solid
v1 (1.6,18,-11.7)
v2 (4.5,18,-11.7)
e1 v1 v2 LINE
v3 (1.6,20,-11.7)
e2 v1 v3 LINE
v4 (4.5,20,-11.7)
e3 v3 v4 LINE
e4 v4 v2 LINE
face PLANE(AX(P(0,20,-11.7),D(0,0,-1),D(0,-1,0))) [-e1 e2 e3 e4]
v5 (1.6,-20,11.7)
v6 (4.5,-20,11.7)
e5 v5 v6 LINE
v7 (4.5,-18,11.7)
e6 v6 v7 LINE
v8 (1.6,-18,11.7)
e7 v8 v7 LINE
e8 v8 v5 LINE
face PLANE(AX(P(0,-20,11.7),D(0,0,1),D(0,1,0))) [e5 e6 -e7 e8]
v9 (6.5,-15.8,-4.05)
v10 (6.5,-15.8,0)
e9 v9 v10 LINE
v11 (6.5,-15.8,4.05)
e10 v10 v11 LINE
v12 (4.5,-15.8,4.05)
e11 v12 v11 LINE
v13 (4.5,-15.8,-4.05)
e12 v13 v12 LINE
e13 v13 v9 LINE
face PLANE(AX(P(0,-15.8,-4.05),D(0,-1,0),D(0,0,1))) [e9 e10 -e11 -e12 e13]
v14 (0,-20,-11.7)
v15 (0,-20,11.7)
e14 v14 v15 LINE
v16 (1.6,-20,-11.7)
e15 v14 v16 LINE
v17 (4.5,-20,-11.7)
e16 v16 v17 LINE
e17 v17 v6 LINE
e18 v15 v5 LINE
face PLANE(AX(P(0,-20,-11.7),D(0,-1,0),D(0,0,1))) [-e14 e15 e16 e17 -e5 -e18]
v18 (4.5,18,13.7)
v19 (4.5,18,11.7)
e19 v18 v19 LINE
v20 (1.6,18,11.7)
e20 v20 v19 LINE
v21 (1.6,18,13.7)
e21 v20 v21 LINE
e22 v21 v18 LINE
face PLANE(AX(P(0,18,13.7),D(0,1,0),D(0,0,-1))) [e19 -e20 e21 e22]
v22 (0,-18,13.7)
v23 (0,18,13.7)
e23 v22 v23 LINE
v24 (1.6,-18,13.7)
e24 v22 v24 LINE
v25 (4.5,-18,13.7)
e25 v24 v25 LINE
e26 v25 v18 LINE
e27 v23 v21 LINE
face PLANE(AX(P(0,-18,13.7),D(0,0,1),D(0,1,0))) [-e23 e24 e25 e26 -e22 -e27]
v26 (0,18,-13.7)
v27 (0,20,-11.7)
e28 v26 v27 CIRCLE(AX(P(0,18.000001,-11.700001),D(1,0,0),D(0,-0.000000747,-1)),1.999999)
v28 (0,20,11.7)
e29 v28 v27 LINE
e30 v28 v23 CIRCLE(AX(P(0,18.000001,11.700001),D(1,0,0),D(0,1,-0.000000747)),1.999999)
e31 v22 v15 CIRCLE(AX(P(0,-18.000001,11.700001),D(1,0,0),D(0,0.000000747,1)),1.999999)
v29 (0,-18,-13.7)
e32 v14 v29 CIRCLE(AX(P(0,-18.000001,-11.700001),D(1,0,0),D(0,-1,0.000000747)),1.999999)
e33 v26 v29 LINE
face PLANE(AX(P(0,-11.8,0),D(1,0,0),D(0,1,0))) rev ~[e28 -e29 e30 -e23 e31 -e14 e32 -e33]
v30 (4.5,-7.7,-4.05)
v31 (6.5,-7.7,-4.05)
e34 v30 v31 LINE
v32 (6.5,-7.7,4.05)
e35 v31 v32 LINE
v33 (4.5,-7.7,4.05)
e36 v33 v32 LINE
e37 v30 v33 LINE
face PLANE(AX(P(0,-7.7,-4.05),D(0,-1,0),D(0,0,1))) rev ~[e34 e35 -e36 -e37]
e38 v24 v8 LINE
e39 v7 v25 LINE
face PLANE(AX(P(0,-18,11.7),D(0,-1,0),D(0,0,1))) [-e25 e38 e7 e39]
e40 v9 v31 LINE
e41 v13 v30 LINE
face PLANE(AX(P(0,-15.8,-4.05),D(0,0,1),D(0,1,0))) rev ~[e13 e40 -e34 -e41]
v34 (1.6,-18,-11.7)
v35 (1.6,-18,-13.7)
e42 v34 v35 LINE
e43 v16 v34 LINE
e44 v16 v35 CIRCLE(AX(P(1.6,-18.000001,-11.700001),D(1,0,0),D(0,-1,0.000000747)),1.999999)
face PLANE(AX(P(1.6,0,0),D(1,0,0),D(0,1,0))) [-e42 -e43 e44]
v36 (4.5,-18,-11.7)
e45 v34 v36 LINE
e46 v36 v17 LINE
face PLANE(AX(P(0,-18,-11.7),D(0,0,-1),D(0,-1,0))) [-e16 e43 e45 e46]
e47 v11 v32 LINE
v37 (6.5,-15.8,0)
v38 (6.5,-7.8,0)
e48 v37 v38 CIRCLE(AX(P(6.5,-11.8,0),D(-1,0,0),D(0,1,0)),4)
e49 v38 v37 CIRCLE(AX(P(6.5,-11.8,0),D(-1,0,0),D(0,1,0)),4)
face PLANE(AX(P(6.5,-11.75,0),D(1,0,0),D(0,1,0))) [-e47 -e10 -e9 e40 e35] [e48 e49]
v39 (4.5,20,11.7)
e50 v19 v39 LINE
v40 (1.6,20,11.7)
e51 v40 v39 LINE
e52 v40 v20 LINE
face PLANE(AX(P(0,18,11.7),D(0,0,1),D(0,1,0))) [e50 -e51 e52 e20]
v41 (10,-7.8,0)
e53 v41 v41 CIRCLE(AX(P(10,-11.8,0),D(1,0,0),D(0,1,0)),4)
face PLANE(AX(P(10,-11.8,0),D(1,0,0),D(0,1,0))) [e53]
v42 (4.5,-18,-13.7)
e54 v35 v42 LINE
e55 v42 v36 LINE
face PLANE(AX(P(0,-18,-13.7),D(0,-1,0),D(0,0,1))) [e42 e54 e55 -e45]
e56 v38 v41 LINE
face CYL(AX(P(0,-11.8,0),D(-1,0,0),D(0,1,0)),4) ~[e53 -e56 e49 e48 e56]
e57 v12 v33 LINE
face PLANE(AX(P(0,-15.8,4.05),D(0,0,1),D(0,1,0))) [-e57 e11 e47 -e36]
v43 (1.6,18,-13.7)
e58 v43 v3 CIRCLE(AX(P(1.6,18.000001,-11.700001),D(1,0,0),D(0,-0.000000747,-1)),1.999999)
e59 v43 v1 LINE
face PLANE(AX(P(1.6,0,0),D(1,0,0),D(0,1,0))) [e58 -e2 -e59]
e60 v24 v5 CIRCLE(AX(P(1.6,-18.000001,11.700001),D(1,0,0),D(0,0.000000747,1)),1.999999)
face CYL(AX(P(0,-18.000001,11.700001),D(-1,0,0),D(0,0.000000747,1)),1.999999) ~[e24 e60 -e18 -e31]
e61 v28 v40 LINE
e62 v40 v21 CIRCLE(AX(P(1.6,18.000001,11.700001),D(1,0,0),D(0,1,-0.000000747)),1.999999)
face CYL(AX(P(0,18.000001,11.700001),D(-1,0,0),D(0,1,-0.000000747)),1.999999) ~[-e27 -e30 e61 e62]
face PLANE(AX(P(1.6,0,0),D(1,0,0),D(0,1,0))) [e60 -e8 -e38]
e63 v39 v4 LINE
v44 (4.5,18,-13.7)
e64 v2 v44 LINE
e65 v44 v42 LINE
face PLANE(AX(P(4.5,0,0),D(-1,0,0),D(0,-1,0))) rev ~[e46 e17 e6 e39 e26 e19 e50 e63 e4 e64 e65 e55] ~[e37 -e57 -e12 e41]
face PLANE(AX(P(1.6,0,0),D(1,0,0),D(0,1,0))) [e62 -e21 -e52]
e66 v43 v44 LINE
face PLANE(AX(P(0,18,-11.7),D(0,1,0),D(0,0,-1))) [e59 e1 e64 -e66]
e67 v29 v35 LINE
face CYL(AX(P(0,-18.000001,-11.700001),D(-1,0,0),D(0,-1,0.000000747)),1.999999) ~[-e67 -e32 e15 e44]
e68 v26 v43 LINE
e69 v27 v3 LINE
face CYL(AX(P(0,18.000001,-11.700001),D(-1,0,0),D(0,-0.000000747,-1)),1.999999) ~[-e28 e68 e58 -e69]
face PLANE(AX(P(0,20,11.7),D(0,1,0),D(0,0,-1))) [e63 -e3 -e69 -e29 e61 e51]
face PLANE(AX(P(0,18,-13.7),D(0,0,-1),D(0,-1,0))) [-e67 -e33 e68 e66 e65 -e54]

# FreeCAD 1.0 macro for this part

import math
import FreeCAD as App
import Part
import Sketcher

V = App.Vector


def add_polygon(sketch, points):
    """Adds a closed chain of lines whose ends are joined by coincident constraints."""
    first, n = sketch.GeometryCount, len(points)
    for a, b in zip(points, points[1:] + points[:1]):
        sketch.addGeometry(Part.LineSegment(App.Vector(*a, 0), App.Vector(*b, 0)), False)
    for i in range(n):
        sketch.addConstraint(Sketcher.Constraint("Coincident", first + i, 2, first + (i + 1) % n, 1))

doc = App.newDocument("Part")
body = doc.addObject("PartDesign::Body", "Body")

sketch1 = body.newObject("Sketcher::SketchObject", "Sketch")
sketch1.AttachmentSupport = (doc.getObject("YZ_Plane"), [""])
sketch1.MapMode = "FlatFace"
sketch1.addGeometry([
    Part.ArcOfCircle(Part.Circle(V(-18, 11.7, 0), V(0, 0, 1), 2), math.radians(90), math.radians(180)),
    Part.LineSegment(V(-20, 11.7, 0), V(-20, -11.7, 0)),
    Part.ArcOfCircle(Part.Circle(V(-18, -11.7, 0), V(0, 0, 1), 2), math.radians(180), math.radians(270)),
    Part.LineSegment(V(-18, -13.7, 0), V(18, -13.7, 0)),
    Part.ArcOfCircle(Part.Circle(V(18, -11.7, 0), V(0, 0, 1), 2), math.radians(-90), math.radians(0)),
    Part.LineSegment(V(20, -11.7, 0), V(20, 11.7, 0)),
    Part.ArcOfCircle(Part.Circle(V(18, 11.7, 0), V(0, 0, 1), 2), math.radians(0), math.radians(90)),
    Part.LineSegment(V(18, 13.7, 0), V(-18, 13.7, 0)),
], False)
sketch1.addConstraint([
    Sketcher.Constraint("Tangent", 0, 2, 1, 1),
    Sketcher.Constraint("Tangent", 1, 2, 2, 1),
    Sketcher.Constraint("Tangent", 2, 2, 3, 1),
    Sketcher.Constraint("Tangent", 3, 2, 4, 1),
    Sketcher.Constraint("Tangent", 4, 2, 5, 1),
    Sketcher.Constraint("Tangent", 5, 2, 6, 1),
    Sketcher.Constraint("Tangent", 6, 2, 7, 1),
    Sketcher.Constraint("Tangent", 7, 2, 0, 1),
    Sketcher.Constraint("Vertical", 1),
    Sketcher.Constraint("Horizontal", 3),
    Sketcher.Constraint("Vertical", 5),
    Sketcher.Constraint("Horizontal", 7),
    Sketcher.Constraint("Equal", 0, 2),
    Sketcher.Constraint("Equal", 2, 4),
    Sketcher.Constraint("Equal", 4, 6),
    Sketcher.Constraint("Symmetric", 0, 3, 4, 3, -1, 1),
    Sketcher.Constraint("Radius", 0, 1.999999),
    Sketcher.Constraint("DistanceX", 3, 1, 3, 2, 36.0),
    Sketcher.Constraint("DistanceY", 1, 2, 1, 1, 23.4),
])
pad1 = body.newObject("PartDesign::Pad", "Pad")
pad1.Profile = sketch1
pad1.Length = 1.6

sketch2 = body.newObject("Sketcher::SketchObject", "Sketch001")
sketch2.AttachmentSupport = (doc.getObject("YZ_Plane"), [""])
sketch2.MapMode = "FlatFace"
add_polygon(sketch2, [(18, 13.7), (-18, 13.7), (-18, 11.7), (-20, 11.7), (-20, -11.7), (-18, -11.7), (-18, -13.7), (18, -13.7), (18, -11.7), (20, -11.7), (20, 11.7), (18, 11.7)])
sketch2.addConstraint([
    Sketcher.Constraint("Horizontal", 0),
    Sketcher.Constraint("Vertical", 1),
    Sketcher.Constraint("Horizontal", 2),
    Sketcher.Constraint("Vertical", 3),
    Sketcher.Constraint("Horizontal", 4),
    Sketcher.Constraint("Vertical", 5),
    Sketcher.Constraint("Horizontal", 6),
    Sketcher.Constraint("Vertical", 7),
    Sketcher.Constraint("Horizontal", 8),
    Sketcher.Constraint("Vertical", 9),
    Sketcher.Constraint("Horizontal", 10),
    Sketcher.Constraint("Vertical", 11),
    Sketcher.Constraint("Symmetric", 0, 2, 6, 2, -1, 1),
    Sketcher.Constraint("Symmetric", 2, 2, 8, 2, -1, 1),
    Sketcher.Constraint("Symmetric", 4, 2, 10, 2, -1, 1),
    Sketcher.Constraint("Symmetric", 4, 2, 7, 2, -2),
    Sketcher.Constraint("Equal", 10, 1),
    Sketcher.Constraint("DistanceX", 0, 2, 0, 1, 36.0),
    Sketcher.Constraint("DistanceX", 2, 2, 2, 1, 2.0),
    Sketcher.Constraint("DistanceY", 3, 2, 3, 1, 23.4),
])
pad2 = body.newObject("PartDesign::Pad", "Pad001")
pad2.Profile = sketch2
pad2.Length = 4.5

sketch3 = body.newObject("Sketcher::SketchObject", "Sketch002")
sketch3.AttachmentSupport = (doc.getObject("YZ_Plane"), [""])
sketch3.MapMode = "FlatFace"
add_polygon(sketch3, [(-16, 4), (-16, -4), (-8, -4), (-8, 4)])
sketch3.addConstraint([
    Sketcher.Constraint("Vertical", 0),
    Sketcher.Constraint("Horizontal", 1),
    Sketcher.Constraint("Vertical", 2),
    Sketcher.Constraint("Horizontal", 3),
    Sketcher.Constraint("Equal", 3, 0),
    Sketcher.Constraint("DistanceX", 1, 1, 1, 2, 8.1),
    Sketcher.Constraint("DistanceX", 0, 2, -1, 1, 15.8),
    Sketcher.Constraint("DistanceY", 0, 2, -1, 1, 4.05),
])
pad3 = body.newObject("PartDesign::Pad", "Pad002")
pad3.Profile = sketch3
pad3.Length = 6.5

sketch4 = body.newObject("Sketcher::SketchObject", "Sketch003")
sketch4.AttachmentSupport = (doc.getObject("YZ_Plane"), [""])
sketch4.MapMode = "FlatFace"
sketch4.addGeometry(Part.Circle(V(-11.8, 0, 0), V(0, 0, 1), 4), False)
sketch4.addConstraint([
    Sketcher.Constraint("PointOnObject", 0, 3, -1),
    Sketcher.Constraint("Diameter", 0, 8.0),
    Sketcher.Constraint("DistanceX", 0, 3, -1, 1, 11.8),
])
pad4 = body.newObject("PartDesign::Pad", "Pad003")
pad4.Profile = sketch4
pad4.Length = 10

doc.recompute()
